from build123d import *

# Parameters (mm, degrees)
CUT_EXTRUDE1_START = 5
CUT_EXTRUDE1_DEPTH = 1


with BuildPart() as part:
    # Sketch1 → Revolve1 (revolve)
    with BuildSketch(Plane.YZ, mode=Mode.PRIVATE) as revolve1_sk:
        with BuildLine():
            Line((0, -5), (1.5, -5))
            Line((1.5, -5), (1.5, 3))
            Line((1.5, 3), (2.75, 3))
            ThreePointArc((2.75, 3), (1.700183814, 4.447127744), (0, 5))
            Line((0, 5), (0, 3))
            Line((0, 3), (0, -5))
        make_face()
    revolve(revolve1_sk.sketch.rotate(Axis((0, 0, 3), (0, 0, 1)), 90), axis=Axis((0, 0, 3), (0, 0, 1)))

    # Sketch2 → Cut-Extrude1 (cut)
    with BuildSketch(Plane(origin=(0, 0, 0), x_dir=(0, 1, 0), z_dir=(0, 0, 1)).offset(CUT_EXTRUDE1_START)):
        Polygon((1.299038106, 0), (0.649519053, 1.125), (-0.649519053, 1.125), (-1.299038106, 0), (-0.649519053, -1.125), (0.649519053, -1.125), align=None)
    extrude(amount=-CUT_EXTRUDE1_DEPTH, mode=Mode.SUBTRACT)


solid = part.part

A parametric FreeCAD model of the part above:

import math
import FreeCAD as App
import Part
import Sketcher

V = App.Vector
Q = App.Units.Quantity


def add_polygon(sketch, points):
    """Adds a closed chain of lines whose ends are joined by coincident constraints."""
    first, n = sketch.GeometryCount, len(points)
    for a, b in zip(points, points[1:] + points[:1]):
        sketch.addGeometry(Part.LineSegment(App.Vector(*a, 0), App.Vector(*b, 0)), False)
    for i in range(n):
        sketch.addConstraint(Sketcher.Constraint("Coincident", first + i, 2, first + (i + 1) % n, 1))

doc = App.newDocument("Part")
body = doc.addObject("PartDesign::Body", "Body")

sketch1 = doc.addObject("Sketcher::SketchObject", "Sketch")
body.addObject(sketch1)
sketch1.AttachmentSupport = (doc.YZ_Plane, [""])
sketch1.MapMode = "FlatFace"
sketch1.addGeometry([
    Part.LineSegment(V(0, -5, 0), V(1.5, -5, 0)),
    Part.LineSegment(V(1.5, -5, 0), V(1.5, 3, 0)),
    Part.LineSegment(V(1.5, 3, 0), V(2.75, 3, 0)),
    Part.ArcOfCircle(Part.Circle(V(0, 2.109375, 0), V(0, 0, 1), 2.890625), math.radians(17.945253), math.radians(90)),
    Part.LineSegment(V(0, 5, 0), V(0, -5, 0)),
], False)
sketch1.addConstraint([
    Sketcher.Constraint("Coincident", 0, 2, 1, 1),
    Sketcher.Constraint("Coincident", 1, 2, 2, 1),
    Sketcher.Constraint("Coincident", 2, 2, 3, 1),
    Sketcher.Constraint("Coincident", 3, 2, 4, 1),
    Sketcher.Constraint("Coincident", 4, 2, 0, 1),
    Sketcher.Constraint("Horizontal", 0),
    Sketcher.Constraint("Vertical", 1),
    Sketcher.Constraint("Horizontal", 2),
    Sketcher.Constraint("Vertical", 4),
    Sketcher.Constraint("Symmetric", 3, 2, 4, 2, -1, 1),
    Sketcher.Constraint("PointOnObject", 3, 3, -2),
    Sketcher.Constraint("DistanceY", 1, 1, 1, 2, Q("8 mm")),
    Sketcher.Constraint("DistanceY", 4, 2, 4, 1, Q("10 mm")),
    Sketcher.Constraint("DistanceX", 0, 1, 0, 2, Q("1.5 mm")),
    Sketcher.Constraint("DistanceX", 2, 1, 2, 2, Q("1.25 mm")),
])
revolution = doc.addObject("PartDesign::Revolution", "Revolution")
body.addObject(revolution)
revolution.Profile = sketch1
revolution.ReferenceAxis = (sketch1, ["V_Axis"])
revolution.Angle = 360

sketch2 = doc.addObject("Sketcher::SketchObject", "Sketch001")
body.addObject(sketch2)
sketch2.AttachmentSupport = (doc.XY_Plane, [""])
sketch2.MapMode = "FlatFace"
sketch2.AttachmentOffset = App.Placement(V(0, 0, 5), App.Rotation())
add_polygon(sketch2, [(0, 1.299038), (-1.125, 0.649519), (-1.125, -0.649519), (0, -1.299038), (1.125, -0.649519), (1.125, 0.649519)])
sketch2.addConstraint([
    Sketcher.Constraint("Vertical", 1),
    Sketcher.Constraint("Vertical", 4),
    Sketcher.Constraint("Symmetric", 0, 2, 3, 2, -1, 1),
    Sketcher.Constraint("Symmetric", 2, 2, 5, 2, -1, 1),
    Sketcher.Constraint("PointOnObject", 2, 2, -2),
    Sketcher.Constraint("Parallel", 2, 5),
    Sketcher.Constraint("Horizontal", 1, 2, 3, 2),
    Sketcher.Constraint("Angle", 0, Q("-150 deg")),
    Sketcher.Constraint("DistanceX", 1, 2, 3, 2, Q("2.25 mm")),
    Sketcher.Constraint("DistanceY", 1, 2, 1, 1, Q("1.299038 mm")),
])
pocket1 = doc.addObject("PartDesign::Pocket", "Pocket")
body.addObject(pocket1)
pocket1.Profile = sketch2
pocket1.Length = 1

doc.recompute()
